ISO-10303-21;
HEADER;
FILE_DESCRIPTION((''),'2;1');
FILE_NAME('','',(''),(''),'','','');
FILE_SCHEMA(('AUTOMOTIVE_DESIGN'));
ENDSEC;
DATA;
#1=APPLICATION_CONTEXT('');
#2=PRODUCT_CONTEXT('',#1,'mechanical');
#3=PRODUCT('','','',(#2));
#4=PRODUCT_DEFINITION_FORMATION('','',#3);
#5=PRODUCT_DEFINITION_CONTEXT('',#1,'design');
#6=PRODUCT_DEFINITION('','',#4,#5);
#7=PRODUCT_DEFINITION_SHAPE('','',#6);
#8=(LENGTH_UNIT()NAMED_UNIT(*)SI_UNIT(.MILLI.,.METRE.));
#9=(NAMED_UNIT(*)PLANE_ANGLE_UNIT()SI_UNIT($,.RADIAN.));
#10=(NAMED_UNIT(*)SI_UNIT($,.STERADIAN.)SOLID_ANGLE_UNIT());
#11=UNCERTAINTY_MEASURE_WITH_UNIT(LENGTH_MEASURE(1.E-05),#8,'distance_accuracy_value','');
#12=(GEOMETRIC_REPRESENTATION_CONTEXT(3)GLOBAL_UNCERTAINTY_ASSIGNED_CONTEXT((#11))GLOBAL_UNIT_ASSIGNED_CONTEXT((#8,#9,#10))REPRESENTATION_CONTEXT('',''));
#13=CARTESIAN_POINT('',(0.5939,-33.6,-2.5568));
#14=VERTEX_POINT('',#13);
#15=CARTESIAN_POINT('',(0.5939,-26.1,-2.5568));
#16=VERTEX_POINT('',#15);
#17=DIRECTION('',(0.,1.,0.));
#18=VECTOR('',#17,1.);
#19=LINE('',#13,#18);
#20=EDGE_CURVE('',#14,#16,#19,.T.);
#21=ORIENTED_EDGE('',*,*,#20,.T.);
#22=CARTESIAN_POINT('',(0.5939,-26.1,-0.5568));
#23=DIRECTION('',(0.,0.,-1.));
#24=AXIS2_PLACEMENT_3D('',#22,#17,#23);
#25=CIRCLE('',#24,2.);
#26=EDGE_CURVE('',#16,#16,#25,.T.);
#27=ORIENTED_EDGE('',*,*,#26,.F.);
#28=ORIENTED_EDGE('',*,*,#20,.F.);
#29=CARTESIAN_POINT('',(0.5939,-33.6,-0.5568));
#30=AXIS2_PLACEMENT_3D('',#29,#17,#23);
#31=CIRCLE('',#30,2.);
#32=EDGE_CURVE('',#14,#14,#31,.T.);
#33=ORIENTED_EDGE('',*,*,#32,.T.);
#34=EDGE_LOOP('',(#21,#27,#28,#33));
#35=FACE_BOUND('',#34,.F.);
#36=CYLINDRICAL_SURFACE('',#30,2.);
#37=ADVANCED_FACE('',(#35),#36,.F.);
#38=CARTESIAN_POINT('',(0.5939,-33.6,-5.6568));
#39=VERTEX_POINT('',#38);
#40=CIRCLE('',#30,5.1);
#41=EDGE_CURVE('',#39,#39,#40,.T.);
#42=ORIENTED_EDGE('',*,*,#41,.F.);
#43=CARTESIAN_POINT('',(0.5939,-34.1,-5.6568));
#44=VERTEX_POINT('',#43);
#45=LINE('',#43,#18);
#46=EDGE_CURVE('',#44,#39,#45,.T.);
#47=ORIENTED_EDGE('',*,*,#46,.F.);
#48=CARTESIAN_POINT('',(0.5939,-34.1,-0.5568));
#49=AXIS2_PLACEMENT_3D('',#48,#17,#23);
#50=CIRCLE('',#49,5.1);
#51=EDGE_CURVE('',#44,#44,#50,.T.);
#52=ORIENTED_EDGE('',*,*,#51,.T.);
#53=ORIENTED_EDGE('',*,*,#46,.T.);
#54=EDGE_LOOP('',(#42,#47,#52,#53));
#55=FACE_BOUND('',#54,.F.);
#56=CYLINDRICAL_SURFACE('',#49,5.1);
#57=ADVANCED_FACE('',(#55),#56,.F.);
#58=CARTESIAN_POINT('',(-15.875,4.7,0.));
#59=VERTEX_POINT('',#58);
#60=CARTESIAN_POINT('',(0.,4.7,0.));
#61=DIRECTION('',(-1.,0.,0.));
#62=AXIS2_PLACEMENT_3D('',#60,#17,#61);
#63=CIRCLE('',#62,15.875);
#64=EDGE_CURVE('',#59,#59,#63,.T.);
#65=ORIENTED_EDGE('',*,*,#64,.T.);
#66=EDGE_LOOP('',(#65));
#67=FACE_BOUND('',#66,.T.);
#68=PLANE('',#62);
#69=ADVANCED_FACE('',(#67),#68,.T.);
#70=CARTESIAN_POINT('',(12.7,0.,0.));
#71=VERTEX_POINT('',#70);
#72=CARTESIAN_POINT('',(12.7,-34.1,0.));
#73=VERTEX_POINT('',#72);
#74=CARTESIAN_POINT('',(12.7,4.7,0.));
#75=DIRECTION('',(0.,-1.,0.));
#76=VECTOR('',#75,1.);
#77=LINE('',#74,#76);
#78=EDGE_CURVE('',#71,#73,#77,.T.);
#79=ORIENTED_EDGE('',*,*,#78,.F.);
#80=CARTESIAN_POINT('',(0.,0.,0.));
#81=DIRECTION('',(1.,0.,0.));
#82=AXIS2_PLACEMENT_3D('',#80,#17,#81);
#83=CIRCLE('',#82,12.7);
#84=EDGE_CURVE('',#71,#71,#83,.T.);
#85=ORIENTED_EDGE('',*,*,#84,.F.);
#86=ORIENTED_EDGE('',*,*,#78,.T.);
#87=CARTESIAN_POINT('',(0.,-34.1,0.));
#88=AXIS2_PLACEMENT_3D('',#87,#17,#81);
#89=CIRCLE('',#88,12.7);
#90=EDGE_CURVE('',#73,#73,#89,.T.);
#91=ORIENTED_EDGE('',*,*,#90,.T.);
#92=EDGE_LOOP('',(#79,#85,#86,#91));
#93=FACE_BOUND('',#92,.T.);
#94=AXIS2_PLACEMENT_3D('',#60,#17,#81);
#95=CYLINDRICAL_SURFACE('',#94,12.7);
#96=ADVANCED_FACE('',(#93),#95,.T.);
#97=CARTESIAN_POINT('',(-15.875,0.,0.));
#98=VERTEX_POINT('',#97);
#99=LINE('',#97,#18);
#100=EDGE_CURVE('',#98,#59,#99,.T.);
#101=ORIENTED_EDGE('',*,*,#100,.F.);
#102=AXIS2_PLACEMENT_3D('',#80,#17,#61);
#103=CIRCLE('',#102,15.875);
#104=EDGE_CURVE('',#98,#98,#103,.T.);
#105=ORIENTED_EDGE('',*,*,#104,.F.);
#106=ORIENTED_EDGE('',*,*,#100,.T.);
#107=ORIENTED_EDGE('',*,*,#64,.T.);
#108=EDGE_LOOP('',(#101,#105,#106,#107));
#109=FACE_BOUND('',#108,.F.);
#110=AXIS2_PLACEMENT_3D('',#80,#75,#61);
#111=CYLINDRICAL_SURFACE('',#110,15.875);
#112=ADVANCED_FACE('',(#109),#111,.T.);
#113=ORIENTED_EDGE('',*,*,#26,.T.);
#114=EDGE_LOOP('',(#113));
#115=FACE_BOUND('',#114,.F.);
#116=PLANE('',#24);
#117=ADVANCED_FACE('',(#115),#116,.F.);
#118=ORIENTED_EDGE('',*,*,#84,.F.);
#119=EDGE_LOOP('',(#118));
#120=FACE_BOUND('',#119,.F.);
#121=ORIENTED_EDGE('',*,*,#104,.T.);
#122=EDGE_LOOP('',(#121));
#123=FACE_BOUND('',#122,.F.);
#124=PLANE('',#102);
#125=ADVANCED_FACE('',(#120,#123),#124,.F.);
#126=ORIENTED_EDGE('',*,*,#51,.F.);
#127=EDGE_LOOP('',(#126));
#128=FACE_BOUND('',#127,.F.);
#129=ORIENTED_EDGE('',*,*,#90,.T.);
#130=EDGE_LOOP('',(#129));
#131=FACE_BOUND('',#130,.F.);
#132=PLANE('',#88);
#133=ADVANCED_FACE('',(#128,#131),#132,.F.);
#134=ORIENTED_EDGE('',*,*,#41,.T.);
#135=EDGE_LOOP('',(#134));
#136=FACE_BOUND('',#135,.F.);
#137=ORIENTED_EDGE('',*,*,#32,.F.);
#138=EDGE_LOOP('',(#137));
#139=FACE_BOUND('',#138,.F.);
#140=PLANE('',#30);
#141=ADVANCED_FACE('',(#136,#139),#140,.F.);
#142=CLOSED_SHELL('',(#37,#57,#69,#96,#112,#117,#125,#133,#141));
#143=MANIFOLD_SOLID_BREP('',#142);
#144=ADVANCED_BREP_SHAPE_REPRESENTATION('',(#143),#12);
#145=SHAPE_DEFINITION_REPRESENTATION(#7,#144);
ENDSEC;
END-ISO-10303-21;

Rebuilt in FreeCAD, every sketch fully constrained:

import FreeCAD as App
import Part
import Sketcher

V = App.Vector

doc = App.newDocument("Part")
body = doc.addObject("PartDesign::Body", "Body")

sketch1 = doc.addObject("Sketcher::SketchObject", "Sketch")
body.addObject(sketch1)
sketch1.AttachmentSupport = (doc.XZ_Plane, [""])
sketch1.MapMode = "FlatFace"
sketch1.addGeometry([
    Part.Circle(V(0, 0, 0), V(0, 0, 1), 16),
    Part.Circle(V(0, 0, 0), V(0, 0, 1), 13),
], False)
sketch1.addConstraint([
    Sketcher.Constraint("Coincident", 0, 3, -1, 1),
    Sketcher.Constraint("Coincident", 1, 3, -1, 1),
    Sketcher.Constraint("Diameter", 1, 25.4),
    Sketcher.Constraint("Diameter", 0, 31.75),
])
pad1 = doc.addObject("PartDesign::Pad", "Pad")
body.addObject(pad1)
pad1.Profile = sketch1
pad1.Length = 4.7
pad1.Reversed = True

sketch2 = doc.addObject("Sketcher::SketchObject", "Sketch001")
body.addObject(sketch2)
sketch2.AttachmentSupport = (doc.XZ_Plane, [""])
sketch2.MapMode = "FlatFace"
sketch2.AttachmentOffset = App.Placement(V(0, 0, -4.7), App.Rotation())
sketch2.addGeometry(Part.Circle(V(0, 0, 0), V(0, 0, 1), 13), False)
sketch2.addConstraint([
    Sketcher.Constraint("Coincident", 0, 3, -1, 1),
    Sketcher.Constraint("Diameter", 0, 25.4),
])
pad2 = doc.addObject("PartDesign::Pad", "Pad001")
body.addObject(pad2)
pad2.Profile = sketch2
pad2.Length = 38.8

sketch3 = doc.addObject("Sketcher::SketchObject", "Sketch002")
body.addObject(sketch3)
sketch3.AttachmentSupport = (doc.XZ_Plane, [""])
sketch3.MapMode = "FlatFace"
sketch3.AttachmentOffset = App.Placement(V(0, 0, 34.1), App.Rotation())
sketch3.addGeometry(Part.Circle(V(0.6, -0.6, 0), V(0, 0, 1), 2), False)
sketch3.addConstraint([
    Sketcher.Constraint("Diameter", 0, 4.0),
    Sketcher.Constraint("DistanceX", -1, 1, 0, 3, 0.594),
    Sketcher.Constraint("DistanceY", 0, 3, -1, 1, 0.5568),
])
doc.recompute()
hole = doc.addObject("PartDesign::Hole", "Hole")
body.addObject(hole)
hole.Profile = sketch3
hole.ThreadType = "None"
hole.Diameter = 4
hole.DepthType = "Dimension"
hole.Depth = 8
hole.DrillPoint = "Flat"
hole.HoleCutType = "Counterbore"
hole.HoleCutDiameter = 10.2
hole.HoleCutDepth = 0.5

doc.recompute()
